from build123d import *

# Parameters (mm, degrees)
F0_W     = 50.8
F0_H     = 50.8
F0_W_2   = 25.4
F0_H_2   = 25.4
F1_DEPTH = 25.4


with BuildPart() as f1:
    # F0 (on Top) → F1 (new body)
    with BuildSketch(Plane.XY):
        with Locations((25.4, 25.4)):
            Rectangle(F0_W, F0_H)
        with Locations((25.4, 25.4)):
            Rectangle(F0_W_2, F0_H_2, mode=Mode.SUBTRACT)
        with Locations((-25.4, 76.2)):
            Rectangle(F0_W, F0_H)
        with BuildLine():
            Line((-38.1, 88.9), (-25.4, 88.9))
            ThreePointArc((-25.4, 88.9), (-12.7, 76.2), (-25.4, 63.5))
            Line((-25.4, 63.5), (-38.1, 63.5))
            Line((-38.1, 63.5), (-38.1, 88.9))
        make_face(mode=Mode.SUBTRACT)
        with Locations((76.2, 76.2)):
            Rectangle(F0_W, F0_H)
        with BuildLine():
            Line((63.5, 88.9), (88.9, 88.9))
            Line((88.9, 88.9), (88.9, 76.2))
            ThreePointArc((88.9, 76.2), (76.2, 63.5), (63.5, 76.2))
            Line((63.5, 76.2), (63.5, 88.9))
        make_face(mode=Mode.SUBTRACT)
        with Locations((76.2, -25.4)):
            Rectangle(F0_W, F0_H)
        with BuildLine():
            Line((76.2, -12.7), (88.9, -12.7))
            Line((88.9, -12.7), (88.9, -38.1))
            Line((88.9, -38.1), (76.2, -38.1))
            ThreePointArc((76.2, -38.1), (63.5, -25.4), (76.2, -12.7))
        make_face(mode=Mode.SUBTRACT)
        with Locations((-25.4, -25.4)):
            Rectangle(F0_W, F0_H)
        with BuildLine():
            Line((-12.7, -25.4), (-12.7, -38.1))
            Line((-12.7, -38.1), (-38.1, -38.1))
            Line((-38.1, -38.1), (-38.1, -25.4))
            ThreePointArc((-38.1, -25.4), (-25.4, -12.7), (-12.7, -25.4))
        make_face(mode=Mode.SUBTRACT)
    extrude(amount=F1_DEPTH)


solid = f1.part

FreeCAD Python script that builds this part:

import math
import FreeCAD as App
import Part
import Sketcher

V = App.Vector
Q = App.Units.Quantity


def add_polygon(sketch, points):
    """Adds a closed chain of lines whose ends are joined by coincident constraints."""
    first, n = sketch.GeometryCount, len(points)
    for a, b in zip(points, points[1:] + points[:1]):
        sketch.addGeometry(Part.LineSegment(App.Vector(*a, 0), App.Vector(*b, 0)), False)
    for i in range(n):
        sketch.addConstraint(Sketcher.Constraint("Coincident", first + i, 2, first + (i + 1) % n, 1))

doc = App.newDocument("Part")
body = doc.addObject("PartDesign::Body", "Body")
body.AllowCompound = True

# Sketch on XY plane
sketch1 = doc.addObject("Sketcher::SketchObject", "Sketch")
body.addObject(sketch1)
sketch1.AttachmentSupport = (doc.XY_Plane, [""])
sketch1.MapMode = "FlatFace"
add_polygon(sketch1, [(0, 51), (0, 0), (51, 0), (51, 51)])  # lines 0-3
add_polygon(sketch1, [(38, 13), (13, 13), (13, 38), (38, 38)])  # lines 4-7
add_polygon(sketch1, [(-51, 102), (-51, 51), (0, 51), (0, 102)])  # lines 8-11
sketch1.addGeometry(Part.LineSegment(V(-38, 64, 0), V(-38, 89, 0)), False)  # 12
sketch1.addGeometry(Part.LineSegment(V(-38, 89, 0), V(-25, 89, 0)), False)  # 13
sketch1.addGeometry(Part.ArcOfCircle(Part.Circle(V(-25, 76, 0), V(0, 0, 1), 13), math.radians(-90), math.radians(90)), False)  # 14
sketch1.addGeometry(Part.LineSegment(V(-25, 64, 0), V(-38, 64, 0)), False)  # 15
add_polygon(sketch1, [(51, 102), (51, 51), (102, 51), (102, 102)])  # lines 16-19
sketch1.addGeometry(Part.LineSegment(V(64, 76, 0), V(64, 89, 0)), False)  # 20
sketch1.addGeometry(Part.LineSegment(V(64, 89, 0), V(89, 89, 0)), False)  # 21
sketch1.addGeometry(Part.LineSegment(V(89, 89, 0), V(89, 76, 0)), False)  # 22
sketch1.addGeometry(Part.ArcOfCircle(Part.Circle(V(76, 76, 0), V(0, 0, 1), 13), math.radians(180), math.radians(360)), False)  # 23
add_polygon(sketch1, [(51, 0), (51, -51), (102, -51), (102, 0)])  # lines 24-27
sketch1.addGeometry(Part.ArcOfCircle(Part.Circle(V(76, -25, 0), V(0, 0, 1), 13), math.radians(90), math.radians(270)), False)  # 28
sketch1.addGeometry(Part.LineSegment(V(76, -13, 0), V(89, -13, 0)), False)  # 29
sketch1.addGeometry(Part.LineSegment(V(89, -13, 0), V(89, -38, 0)), False)  # 30
sketch1.addGeometry(Part.LineSegment(V(89, -38, 0), V(76, -38, 0)), False)  # 31
add_polygon(sketch1, [(-51, 0), (-51, -51), (0, -51), (0, 0)])  # lines 32-35
sketch1.addGeometry(Part.ArcOfCircle(Part.Circle(V(-25, -25, 0), V(0, 0, 1), 13), math.radians(0), math.radians(180)), False)  # 36
sketch1.addGeometry(Part.LineSegment(V(-13, -25, 0), V(-13, -38, 0)), False)  # 37
sketch1.addGeometry(Part.LineSegment(V(-13, -38, 0), V(-38, -38, 0)), False)  # 38
sketch1.addGeometry(Part.LineSegment(V(-38, -38, 0), V(-38, -25, 0)), False)  # 39
sketch1.addConstraint(Sketcher.Constraint("Coincident", 12, 2, 13, 1))
sketch1.addConstraint(Sketcher.Constraint("Tangent", 13, 2, 14, 2))
sketch1.addConstraint(Sketcher.Constraint("Tangent", 14, 1, 15, 1))
sketch1.addConstraint(Sketcher.Constraint("Coincident", 15, 2, 12, 1))
sketch1.addConstraint(Sketcher.Constraint("Coincident", 20, 2, 21, 1))
sketch1.addConstraint(Sketcher.Constraint("Coincident", 21, 2, 22, 1))
sketch1.addConstraint(Sketcher.Constraint("Tangent", 22, 2, 23, 2))
sketch1.addConstraint(Sketcher.Constraint("Tangent", 23, 1, 20, 1))
sketch1.addConstraint(Sketcher.Constraint("Tangent", 28, 1, 29, 1))
sketch1.addConstraint(Sketcher.Constraint("Coincident", 29, 2, 30, 1))
sketch1.addConstraint(Sketcher.Constraint("Coincident", 30, 2, 31, 1))
sketch1.addConstraint(Sketcher.Constraint("Tangent", 31, 2, 28, 2))
sketch1.addConstraint(Sketcher.Constraint("Tangent", 36, 1, 37, 1))
sketch1.addConstraint(Sketcher.Constraint("Coincident", 37, 2, 38, 1))
sketch1.addConstraint(Sketcher.Constraint("Coincident", 38, 2, 39, 1))
sketch1.addConstraint(Sketcher.Constraint("Tangent", 39, 2, 36, 2))
sketch1.addConstraint(Sketcher.Constraint("Vertical", 0))
sketch1.addConstraint(Sketcher.Constraint("Horizontal", 1))
sketch1.addConstraint(Sketcher.Constraint("Vertical", 2))
sketch1.addConstraint(Sketcher.Constraint("Horizontal", 3))
sketch1.addConstraint(Sketcher.Constraint("Horizontal", 4))
sketch1.addConstraint(Sketcher.Constraint("Vertical", 5))
sketch1.addConstraint(Sketcher.Constraint("Horizontal", 6))
sketch1.addConstraint(Sketcher.Constraint("Vertical", 7))
sketch1.addConstraint(Sketcher.Constraint("Vertical", 8))
sketch1.addConstraint(Sketcher.Constraint("Horizontal", 9))
sketch1.addConstraint(Sketcher.Constraint("Vertical", 10))
sketch1.addConstraint(Sketcher.Constraint("Horizontal", 11))
sketch1.addConstraint(Sketcher.Constraint("Vertical", 12))
sketch1.addConstraint(Sketcher.Constraint("Horizontal", 13))
sketch1.addConstraint(Sketcher.Constraint("Horizontal", 15))
sketch1.addConstraint(Sketcher.Constraint("Vertical", 16))
sketch1.addConstraint(Sketcher.Constraint("Horizontal", 17))
sketch1.addConstraint(Sketcher.Constraint("Vertical", 18))
sketch1.addConstraint(Sketcher.Constraint("Horizontal", 19))
sketch1.addConstraint(Sketcher.Constraint("Vertical", 20))
sketch1.addConstraint(Sketcher.Constraint("Horizontal", 21))
sketch1.addConstraint(Sketcher.Constraint("Vertical", 22))
sketch1.addConstraint(Sketcher.Constraint("Vertical", 24))
sketch1.addConstraint(Sketcher.Constraint("Horizontal", 25))
sketch1.addConstraint(Sketcher.Constraint("Vertical", 26))
sketch1.addConstraint(Sketcher.Constraint("Horizontal", 27))
sketch1.addConstraint(Sketcher.Constraint("Horizontal", 29))
sketch1.addConstraint(Sketcher.Constraint("Vertical", 30))
sketch1.addConstraint(Sketcher.Constraint("Horizontal", 31))
sketch1.addConstraint(Sketcher.Constraint("Vertical", 32))
sketch1.addConstraint(Sketcher.Constraint("Horizontal", 33))
sketch1.addConstraint(Sketcher.Constraint("Vertical", 34))
sketch1.addConstraint(Sketcher.Constraint("Horizontal", 35))
sketch1.addConstraint(Sketcher.Constraint("Vertical", 37))
sketch1.addConstraint(Sketcher.Constraint("Horizontal", 38))
sketch1.addConstraint(Sketcher.Constraint("Vertical", 39))
sketch1.addConstraint(Sketcher.Constraint("Coincident", 0, 2, -1, 1))
sketch1.addConstraint(Sketcher.Constraint("Coincident", 34, 2, -1, 1))
sketch1.addConstraint(Sketcher.Constraint("Coincident", 9, 2, 3, 2))
sketch1.addConstraint(Sketcher.Constraint("Coincident", 16, 2, 2, 2))
sketch1.addConstraint(Sketcher.Constraint("Coincident", 27, 2, 1, 2))
sketch1.addConstraint(Sketcher.Constraint("Equal", 14, 23))
sketch1.addConstraint(Sketcher.Constraint("Equal", 23, 28))
sketch1.addConstraint(Sketcher.Constraint("Equal", 28, 36))
sketch1.addConstraint(Sketcher.Constraint("Symmetric", 8, 2, 24, 2, -1, 1))
sketch1.addConstraint(Sketcher.Constraint("Symmetric", 2, 2, 32, 2, -1, 1))
sketch1.addConstraint(Sketcher.Constraint("Symmetric", 5, 2, 37, 2, -1, 1))
sketch1.addConstraint(Sketcher.Constraint("Horizontal", 14, 3, 23, 3))
sketch1.addConstraint(Sketcher.Constraint("Horizontal", 28, 3, 36, 3))
sketch1.addConstraint(Sketcher.Constraint("Horizontal", 11, 2, 18, 2))
sketch1.addConstraint(Sketcher.Constraint("Horizontal", 13, 2, 20, 2))
sketch1.addConstraint(Sketcher.Constraint("Horizontal", 31, 2, 37, 2))
sketch1.addConstraint(Sketcher.Constraint("Vertical", 23, 3, 28, 3))
sketch1.addConstraint(Sketcher.Constraint("Vertical", 14, 3, 36, 3))
sketch1.addConstraint(Sketcher.Constraint("Vertical", 18, 2, 25, 2))
sketch1.addConstraint(Sketcher.Constraint("Vertical", 22, 2, 29, 2))
sketch1.addConstraint(Sketcher.Constraint("Vertical", 15, 2, 38, 2))
sketch1.addConstraint(Sketcher.Constraint("Equal", 11, 17))
sketch1.addConstraint(Sketcher.Constraint("Equal", 6, 21))
sketch1.addConstraint(Sketcher.Constraint("Equal", 35, 0))
sketch1.addConstraint(Sketcher.Constraint("Equal", 38, 5))
sketch1.addConstraint(Sketcher.Constraint("Equal", 2, 8))
sketch1.addConstraint(Sketcher.Constraint("Radius", 14, Q("0.5 in")))
sketch1.addConstraint(Sketcher.Constraint("DistanceX", 1, 1, 1, 2, Q("2 in")))
sketch1.addConstraint(Sketcher.Constraint("DistanceX", 14, 3, -1, 1, Q("1 in")))
sketch1.addConstraint(Sketcher.Constraint("DistanceY", -1, 1, 14, 3, Q("3 in")))
sketch1.addConstraint(Sketcher.Constraint("DistanceX", -1, 1, 23, 3, Q("3 in")))
sketch1.addConstraint(Sketcher.Constraint("DistanceY", 28, 3, -1, 1, Q("1 in")))
pad1 = doc.addObject("PartDesign::Pad", "Pad")
body.addObject(pad1)
pad1.Profile = sketch1
pad1.Length = Q("1 in")

doc.recompute()
